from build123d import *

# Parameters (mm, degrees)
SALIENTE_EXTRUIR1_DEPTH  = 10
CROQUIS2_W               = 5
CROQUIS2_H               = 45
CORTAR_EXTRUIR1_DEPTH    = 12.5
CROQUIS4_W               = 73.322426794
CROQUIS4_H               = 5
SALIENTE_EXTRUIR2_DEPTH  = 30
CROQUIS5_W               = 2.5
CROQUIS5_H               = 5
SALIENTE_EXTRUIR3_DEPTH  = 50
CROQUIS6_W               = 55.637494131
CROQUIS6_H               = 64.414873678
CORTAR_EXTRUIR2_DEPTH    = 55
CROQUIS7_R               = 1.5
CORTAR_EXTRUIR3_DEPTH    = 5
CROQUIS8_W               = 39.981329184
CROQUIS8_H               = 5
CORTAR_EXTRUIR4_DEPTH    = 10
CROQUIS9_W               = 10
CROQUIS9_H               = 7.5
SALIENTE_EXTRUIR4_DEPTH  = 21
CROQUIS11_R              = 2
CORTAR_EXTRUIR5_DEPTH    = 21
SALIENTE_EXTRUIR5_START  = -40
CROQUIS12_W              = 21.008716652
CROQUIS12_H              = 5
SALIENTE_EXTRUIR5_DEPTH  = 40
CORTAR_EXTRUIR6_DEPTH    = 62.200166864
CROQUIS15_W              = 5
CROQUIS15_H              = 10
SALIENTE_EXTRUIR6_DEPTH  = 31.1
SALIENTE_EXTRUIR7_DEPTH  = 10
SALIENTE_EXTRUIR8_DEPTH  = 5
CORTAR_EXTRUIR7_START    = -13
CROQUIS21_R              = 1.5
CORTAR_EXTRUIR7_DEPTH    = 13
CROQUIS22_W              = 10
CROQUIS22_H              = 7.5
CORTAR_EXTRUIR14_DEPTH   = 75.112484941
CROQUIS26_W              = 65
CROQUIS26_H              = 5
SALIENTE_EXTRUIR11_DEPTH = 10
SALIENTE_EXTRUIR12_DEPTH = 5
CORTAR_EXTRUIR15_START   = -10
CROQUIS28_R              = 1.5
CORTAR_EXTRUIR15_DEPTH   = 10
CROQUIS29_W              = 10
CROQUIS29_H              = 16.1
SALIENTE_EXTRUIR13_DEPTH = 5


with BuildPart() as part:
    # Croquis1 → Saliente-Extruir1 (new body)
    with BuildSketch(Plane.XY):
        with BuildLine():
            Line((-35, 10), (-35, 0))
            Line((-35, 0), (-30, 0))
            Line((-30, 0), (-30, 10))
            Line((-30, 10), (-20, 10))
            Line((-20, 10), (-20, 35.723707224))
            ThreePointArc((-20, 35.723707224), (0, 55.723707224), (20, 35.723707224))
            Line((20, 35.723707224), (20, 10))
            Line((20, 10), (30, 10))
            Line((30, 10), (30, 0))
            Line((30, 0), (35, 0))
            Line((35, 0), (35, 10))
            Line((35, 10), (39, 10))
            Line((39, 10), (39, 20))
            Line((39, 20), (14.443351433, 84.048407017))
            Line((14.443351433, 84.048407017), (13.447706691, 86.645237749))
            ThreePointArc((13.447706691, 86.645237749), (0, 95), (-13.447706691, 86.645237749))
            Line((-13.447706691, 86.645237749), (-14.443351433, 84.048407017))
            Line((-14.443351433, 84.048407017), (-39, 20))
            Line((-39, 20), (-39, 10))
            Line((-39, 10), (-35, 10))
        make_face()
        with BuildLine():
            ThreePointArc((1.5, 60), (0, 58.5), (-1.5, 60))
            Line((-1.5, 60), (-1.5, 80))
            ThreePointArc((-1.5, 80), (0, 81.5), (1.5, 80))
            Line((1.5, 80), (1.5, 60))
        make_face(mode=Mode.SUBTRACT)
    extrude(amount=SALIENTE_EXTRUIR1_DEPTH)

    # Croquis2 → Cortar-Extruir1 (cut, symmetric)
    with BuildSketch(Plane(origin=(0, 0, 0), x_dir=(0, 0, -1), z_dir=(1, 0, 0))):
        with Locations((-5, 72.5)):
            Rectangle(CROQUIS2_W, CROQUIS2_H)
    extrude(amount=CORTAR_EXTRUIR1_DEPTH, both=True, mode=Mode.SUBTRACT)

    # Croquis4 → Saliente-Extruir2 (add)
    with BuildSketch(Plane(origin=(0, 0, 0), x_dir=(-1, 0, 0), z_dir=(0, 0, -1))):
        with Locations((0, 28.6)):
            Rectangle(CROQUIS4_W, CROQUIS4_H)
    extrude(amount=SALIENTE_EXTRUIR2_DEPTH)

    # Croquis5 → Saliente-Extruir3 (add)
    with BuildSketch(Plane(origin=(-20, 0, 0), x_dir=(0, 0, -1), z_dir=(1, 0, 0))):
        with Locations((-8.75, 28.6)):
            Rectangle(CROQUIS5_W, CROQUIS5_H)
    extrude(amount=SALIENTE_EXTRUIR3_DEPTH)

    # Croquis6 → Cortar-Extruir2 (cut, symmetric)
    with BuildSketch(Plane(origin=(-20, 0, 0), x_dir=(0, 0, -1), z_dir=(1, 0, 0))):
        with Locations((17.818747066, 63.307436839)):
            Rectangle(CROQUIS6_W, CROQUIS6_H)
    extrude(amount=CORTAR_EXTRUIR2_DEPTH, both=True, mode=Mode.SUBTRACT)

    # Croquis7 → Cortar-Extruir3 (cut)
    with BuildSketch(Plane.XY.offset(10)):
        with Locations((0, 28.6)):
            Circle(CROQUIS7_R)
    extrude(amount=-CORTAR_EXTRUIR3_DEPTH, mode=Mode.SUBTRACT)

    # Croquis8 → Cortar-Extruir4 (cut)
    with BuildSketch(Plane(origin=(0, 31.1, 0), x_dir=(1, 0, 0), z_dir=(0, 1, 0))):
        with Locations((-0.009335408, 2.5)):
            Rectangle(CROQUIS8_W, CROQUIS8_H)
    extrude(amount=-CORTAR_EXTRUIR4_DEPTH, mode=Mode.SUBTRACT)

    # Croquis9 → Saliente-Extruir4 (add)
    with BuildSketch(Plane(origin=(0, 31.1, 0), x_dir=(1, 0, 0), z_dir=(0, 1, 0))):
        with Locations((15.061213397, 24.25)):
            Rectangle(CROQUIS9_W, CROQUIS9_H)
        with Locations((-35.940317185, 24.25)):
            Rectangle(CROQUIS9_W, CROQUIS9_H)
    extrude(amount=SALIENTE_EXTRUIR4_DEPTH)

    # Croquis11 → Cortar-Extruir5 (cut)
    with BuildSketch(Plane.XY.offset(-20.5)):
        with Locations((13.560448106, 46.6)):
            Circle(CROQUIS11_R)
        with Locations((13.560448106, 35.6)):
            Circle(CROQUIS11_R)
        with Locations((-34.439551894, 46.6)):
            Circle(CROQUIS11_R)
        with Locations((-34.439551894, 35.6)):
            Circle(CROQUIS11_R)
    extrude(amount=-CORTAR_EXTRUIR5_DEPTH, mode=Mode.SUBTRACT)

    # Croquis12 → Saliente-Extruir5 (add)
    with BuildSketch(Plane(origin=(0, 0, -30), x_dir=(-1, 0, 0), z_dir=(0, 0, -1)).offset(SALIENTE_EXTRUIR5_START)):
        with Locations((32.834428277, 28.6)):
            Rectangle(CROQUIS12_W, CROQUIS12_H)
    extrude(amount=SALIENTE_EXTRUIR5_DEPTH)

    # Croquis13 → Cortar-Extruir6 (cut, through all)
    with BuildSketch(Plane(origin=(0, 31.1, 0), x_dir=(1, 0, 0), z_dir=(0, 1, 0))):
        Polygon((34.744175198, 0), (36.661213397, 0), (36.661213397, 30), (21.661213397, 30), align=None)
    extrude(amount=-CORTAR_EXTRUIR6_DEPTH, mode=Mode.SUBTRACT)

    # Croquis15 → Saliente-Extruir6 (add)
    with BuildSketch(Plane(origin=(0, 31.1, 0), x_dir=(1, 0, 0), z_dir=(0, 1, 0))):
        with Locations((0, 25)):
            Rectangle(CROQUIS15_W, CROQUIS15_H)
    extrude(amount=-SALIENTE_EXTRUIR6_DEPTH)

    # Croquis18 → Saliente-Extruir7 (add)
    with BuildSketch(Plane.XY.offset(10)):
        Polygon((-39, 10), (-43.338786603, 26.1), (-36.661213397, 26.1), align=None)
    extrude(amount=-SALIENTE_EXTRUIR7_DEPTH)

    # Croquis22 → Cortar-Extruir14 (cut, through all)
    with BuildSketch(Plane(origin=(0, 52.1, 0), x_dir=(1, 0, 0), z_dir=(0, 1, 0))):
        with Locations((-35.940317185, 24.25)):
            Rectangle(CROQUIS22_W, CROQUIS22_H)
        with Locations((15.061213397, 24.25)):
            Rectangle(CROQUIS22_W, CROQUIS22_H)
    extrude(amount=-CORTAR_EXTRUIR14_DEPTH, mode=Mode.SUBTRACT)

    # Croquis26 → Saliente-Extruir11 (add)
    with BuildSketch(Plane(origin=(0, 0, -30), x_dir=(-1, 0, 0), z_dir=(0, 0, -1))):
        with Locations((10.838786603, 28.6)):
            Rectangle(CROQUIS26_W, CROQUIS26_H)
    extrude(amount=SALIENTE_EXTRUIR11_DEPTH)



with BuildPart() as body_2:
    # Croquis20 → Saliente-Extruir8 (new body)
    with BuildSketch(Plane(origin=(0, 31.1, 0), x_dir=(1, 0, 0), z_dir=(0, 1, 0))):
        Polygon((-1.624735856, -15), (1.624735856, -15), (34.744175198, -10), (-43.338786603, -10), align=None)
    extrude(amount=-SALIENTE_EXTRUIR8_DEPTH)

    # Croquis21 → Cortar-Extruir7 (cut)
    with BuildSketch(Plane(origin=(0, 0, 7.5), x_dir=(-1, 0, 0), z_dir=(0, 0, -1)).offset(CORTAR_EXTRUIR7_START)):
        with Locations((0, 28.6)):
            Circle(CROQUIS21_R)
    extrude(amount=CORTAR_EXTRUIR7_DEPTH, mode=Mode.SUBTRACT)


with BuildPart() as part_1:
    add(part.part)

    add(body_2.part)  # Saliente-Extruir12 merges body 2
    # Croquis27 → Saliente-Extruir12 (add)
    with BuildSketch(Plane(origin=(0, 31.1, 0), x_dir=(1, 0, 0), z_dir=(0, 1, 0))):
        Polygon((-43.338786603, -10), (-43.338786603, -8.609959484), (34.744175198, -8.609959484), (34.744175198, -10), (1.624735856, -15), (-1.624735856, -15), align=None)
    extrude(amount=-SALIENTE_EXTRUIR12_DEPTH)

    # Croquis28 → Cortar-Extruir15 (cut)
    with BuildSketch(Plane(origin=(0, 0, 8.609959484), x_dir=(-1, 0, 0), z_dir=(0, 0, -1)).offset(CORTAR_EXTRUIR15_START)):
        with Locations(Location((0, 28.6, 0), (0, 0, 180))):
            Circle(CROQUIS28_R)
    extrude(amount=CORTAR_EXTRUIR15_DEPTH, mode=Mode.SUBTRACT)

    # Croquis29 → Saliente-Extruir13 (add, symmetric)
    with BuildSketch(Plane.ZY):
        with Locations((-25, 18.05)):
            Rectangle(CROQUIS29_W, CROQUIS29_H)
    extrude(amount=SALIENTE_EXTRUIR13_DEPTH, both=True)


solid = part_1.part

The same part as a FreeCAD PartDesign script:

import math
import FreeCAD as App
import Part
import Sketcher


def add_polygon(sketch, points):
    """Adds a closed chain of lines whose ends are joined by coincident constraints."""
    first, n = sketch.GeometryCount, len(points)
    for a, b in zip(points, points[1:] + points[:1]):
        sketch.addGeometry(Part.LineSegment(App.Vector(*a, 0), App.Vector(*b, 0)), False)
    for i in range(n):
        sketch.addConstraint(Sketcher.Constraint("Coincident", first + i, 2, first + (i + 1) % n, 1))

doc = App.newDocument("Part")
body = doc.addObject("PartDesign::Body", "Body")

# Sketch on XY plane
sketch1 = body.newObject("Sketcher::SketchObject", "Sketch")
sketch1.AttachmentSupport = (doc.getObject("XY_Plane"), [""])
sketch1.MapMode = "FlatFace"
sketch1.addGeometry([
    Part.LineSegment(App.Vector(-35, 10, 0), App.Vector(-35, 0, 0)),  # 0
    Part.LineSegment(App.Vector(-35, 0, 0), App.Vector(-30, 0, 0)),  # 1
    Part.LineSegment(App.Vector(-30, 0, 0), App.Vector(-30, 10, 0)),  # 2
    Part.LineSegment(App.Vector(-30, 10, 0), App.Vector(-20, 10, 0)),  # 3
    Part.LineSegment(App.Vector(-20, 10, 0), App.Vector(-20, 35.723707, 0)),  # 4
    Part.ArcOfCircle(Part.Circle(App.Vector(0, 35.723707, 0), App.Vector(0, 0, 1), 20), math.radians(0), math.radians(180)),  # 5
    Part.LineSegment(App.Vector(20, 35.723707, 0), App.Vector(20, 10, 0)),  # 6
    Part.LineSegment(App.Vector(20, 10, 0), App.Vector(30, 10, 0)),  # 7
    Part.LineSegment(App.Vector(30, 10, 0), App.Vector(30, 0, 0)),  # 8
    Part.LineSegment(App.Vector(30, 0, 0), App.Vector(35, 0, 0)),  # 9
    Part.LineSegment(App.Vector(35, 0, 0), App.Vector(35, 10, 0)),  # 10
    Part.LineSegment(App.Vector(35, 10, 0), App.Vector(39, 10, 0)),  # 11
    Part.LineSegment(App.Vector(39, 10, 0), App.Vector(39, 20, 0)),  # 12
    Part.LineSegment(App.Vector(39, 20, 0), App.Vector(14.443351, 84.048407, 0)),  # 13
    Part.LineSegment(App.Vector(14.443351, 84.048407, 0), App.Vector(13.447707, 86.645238, 0)),  # 14
    Part.ArcOfCircle(Part.Circle(App.Vector(0, 80, 0), App.Vector(0, 0, 1), 15), math.radians(26.296463), math.radians(153.703537)),  # 15
    Part.LineSegment(App.Vector(-13.447707, 86.645238, 0), App.Vector(-14.443351, 84.048407, 0)),  # 16
    Part.LineSegment(App.Vector(-14.443351, 84.048407, 0), App.Vector(-39, 20, 0)),  # 17
    Part.LineSegment(App.Vector(-39, 20, 0), App.Vector(-39, 10, 0)),  # 18
    Part.LineSegment(App.Vector(-39, 10, 0), App.Vector(-35, 10, 0)),  # 19
    Part.LineSegment(App.Vector(1.5, 80, 0), App.Vector(1.5, 60, 0)),  # 20
    Part.ArcOfCircle(Part.Circle(App.Vector(0, 60, 0), App.Vector(0, 0, 1), 1.5), math.radians(180), math.radians(360)),  # 21
    Part.LineSegment(App.Vector(-1.5, 60, 0), App.Vector(-1.5, 80, 0)),  # 22
    Part.ArcOfCircle(Part.Circle(App.Vector(0, 80, 0), App.Vector(0, 0, 1), 1.5), math.radians(0), math.radians(180)),  # 23
], False)
sketch1.addConstraint([
    Sketcher.Constraint("Coincident", 0, 2, 1, 1),
    Sketcher.Constraint("Coincident", 1, 2, 2, 1),
    Sketcher.Constraint("Coincident", 2, 2, 3, 1),
    Sketcher.Constraint("Coincident", 3, 2, 4, 1),
    Sketcher.Constraint("Tangent", 4, 2, 5, 2),
    Sketcher.Constraint("Tangent", 5, 1, 6, 1),
    Sketcher.Constraint("Coincident", 6, 2, 7, 1),
    Sketcher.Constraint("Coincident", 7, 2, 8, 1),
    Sketcher.Constraint("Coincident", 8, 2, 9, 1),
    Sketcher.Constraint("Coincident", 9, 2, 10, 1),
    Sketcher.Constraint("Coincident", 10, 2, 11, 1),
    Sketcher.Constraint("Coincident", 11, 2, 12, 1),
    Sketcher.Constraint("Coincident", 12, 2, 13, 1),
    Sketcher.Constraint("Coincident", 13, 2, 14, 1),
    Sketcher.Constraint("Coincident", 14, 2, 15, 1),
    Sketcher.Constraint("Coincident", 15, 2, 16, 1),
    Sketcher.Constraint("Coincident", 16, 2, 17, 1),
    Sketcher.Constraint("Coincident", 17, 2, 18, 1),
    Sketcher.Constraint("Coincident", 18, 2, 19, 1),
    Sketcher.Constraint("Coincident", 19, 2, 0, 1),
    Sketcher.Constraint("Tangent", 20, 2, 21, 2),
    Sketcher.Constraint("Tangent", 21, 1, 22, 1),
    Sketcher.Constraint("Tangent", 22, 2, 23, 2),
    Sketcher.Constraint("Tangent", 23, 1, 20, 1),
    Sketcher.Constraint("Vertical", 0),
    Sketcher.Constraint("Horizontal", 1),
    Sketcher.Constraint("Vertical", 2),
    Sketcher.Constraint("Horizontal", 3),
    Sketcher.Constraint("Vertical", 4),
    Sketcher.Constraint("Vertical", 6),
    Sketcher.Constraint("Horizontal", 7),
    Sketcher.Constraint("Vertical", 8),
    Sketcher.Constraint("Horizontal", 9),
    Sketcher.Constraint("Vertical", 10),
    Sketcher.Constraint("Horizontal", 11),
    Sketcher.Constraint("Vertical", 12),
    Sketcher.Constraint("Vertical", 18),
    Sketcher.Constraint("Horizontal", 19),
    Sketcher.Constraint("Vertical", 20),
    Sketcher.Constraint("Vertical", 22),
    Sketcher.Constraint("Coincident", 23, 3, 15, 3),
    Sketcher.Constraint("Symmetric", 1, 2, 8, 2, -1, 1),
    Sketcher.Constraint("Symmetric", 3, 2, 6, 2, -2),
    Sketcher.Constraint("Symmetric", 0, 2, 9, 2, -2),
    Sketcher.Constraint("Symmetric", 14, 2, 15, 2, -2),
    Sketcher.Constraint("Symmetric", 13, 2, 16, 2, -2),
    Sketcher.Constraint("Symmetric", 12, 2, 17, 2, -2),
    Sketcher.Constraint("Parallel", 13, 14),
    Sketcher.Constraint("Horizontal", 7, 2, 10, 2),
    Sketcher.Constraint("Horizontal", 11, 2, 18, 2),
    Sketcher.Constraint("Equal", 7, 0),
    Sketcher.Constraint("Equal", 10, 12),
    Sketcher.Constraint("Radius", 5, 20.0),
    Sketcher.Constraint("Radius", 15, 15.0),
    Sketcher.Constraint("Radius", 21, 1.5),
    Sketcher.Constraint("DistanceX", 1, 1, 1, 2, 5.0),
    Sketcher.Constraint("DistanceX", 3, 1, 3, 2, 10.0),
    Sketcher.Constraint("DistanceX", 11, 1, 11, 2, 4.0),
    Sketcher.Constraint("DistanceY", 20, 2, 20, 1, 20.0),
    Sketcher.Constraint("DistanceY", -1, 1, 15, 3, 80.0),
    Sketcher.Constraint("DistanceY", 5, 1, 13, 2, 48.3247),
    Sketcher.Constraint("Distance", 13, 68.59466),
    Sketcher.Constraint("DistanceY", 4, 1, 4, 2, 25.723707),
])
pad1 = body.newObject("PartDesign::Pad", "Pad")
pad1.Profile = sketch1
pad1.Length = 10

# Sketch on YZ plane
sketch2 = body.newObject("Sketcher::SketchObject", "Sketch001")
sketch2.AttachmentSupport = (doc.getObject("YZ_Plane"), [""])
sketch2.MapMode = "FlatFace"
add_polygon(sketch2, [(95, 7.5), (50, 7.5), (50, 2.5), (95, 2.5)])  # lines 0-3
sketch2.addConstraint([
    Sketcher.Constraint("Horizontal", 0),
    Sketcher.Constraint("Vertical", 1),
    Sketcher.Constraint("Horizontal", 2),
    Sketcher.Constraint("Vertical", 3),
    Sketcher.Constraint("DistanceX", 0, 2, 0, 1, 45.0),
    Sketcher.Constraint("DistanceY", 1, 2, 1, 1, 5.0),
    Sketcher.Constraint("DistanceX", -1, 1, 0, 2, 50.0),
    Sketcher.Constraint("DistanceY", -1, 1, 0, 2, 7.5),
])
pocket1 = body.newObject("PartDesign::Pocket", "Pocket")
pocket1.Profile = sketch2
pocket1.Length = 25
pocket1.Midplane = True

# Sketch on XY plane
sketch3 = body.newObject("Sketcher::SketchObject", "Sketch002")
sketch3.AttachmentSupport = (doc.getObject("XY_Plane"), [""])
sketch3.MapMode = "FlatFace"
add_polygon(sketch3, [(36.661213, 31.1), (36.661213, 26.1), (-36.661213, 26.1), (-36.661213, 31.1)])  # lines 0-3
sketch3.addConstraint([
    Sketcher.Constraint("Vertical", 0),
    Sketcher.Constraint("Horizontal", 1),
    Sketcher.Constraint("Vertical", 2),
    Sketcher.Constraint("Horizontal", 3),
    Sketcher.Constraint("DistanceY", 0, 2, 0, 1, 5.0),
    Sketcher.Constraint("DistanceY", -1, 1, 0, 2, 26.1),
    Sketcher.Constraint("DistanceX", 1, 2, 1, 1, 73.322427),
    Sketcher.Constraint("DistanceX", -1, 1, 0, 2, 36.661213),
])
pad2 = body.newObject("PartDesign::Pad", "Pad001")
pad2.Profile = sketch3
pad2.Length = 30
pad2.Reversed = True

# Sketch on YZ plane
sketch4 = body.newObject("Sketcher::SketchObject", "Sketch003")
sketch4.AttachmentSupport = (doc.getObject("YZ_Plane"), [""])
sketch4.MapMode = "FlatFace"
sketch4.AttachmentOffset = App.Placement(App.Vector(0, 0, -20), App.Rotation())
add_polygon(sketch4, [(31.1, 10), (26.1, 10), (26.1, 7.5), (31.1, 7.5)])  # lines 0-3
sketch4.addConstraint([
    Sketcher.Constraint("Horizontal", 0),
    Sketcher.Constraint("Vertical", 1),
    Sketcher.Constraint("Horizontal", 2),
    Sketcher.Constraint("Vertical", 3),
    Sketcher.Constraint("DistanceX", 0, 2, 0, 1, 5.0),
    Sketcher.Constraint("DistanceY", 1, 2, 1, 1, 2.5),
    Sketcher.Constraint("DistanceY", -1, 1, 0, 2, 10.0),
    Sketcher.Constraint("DistanceX", -1, 1, 0, 2, 26.1),
])
pad3 = body.newObject("PartDesign::Pad", "Pad002")
pad3.Profile = sketch4
pad3.Length = 50

# Sketch on YZ plane
sketch5 = body.newObject("Sketcher::SketchObject", "Sketch004")
sketch5.AttachmentSupport = (doc.getObject("YZ_Plane"), [""])
sketch5.MapMode = "FlatFace"
sketch5.AttachmentOffset = App.Placement(App.Vector(0, 0, -20), App.Rotation())
add_polygon(sketch5, [(95.514874, 10), (31.1, 10), (31.1, -45.637494), (95.514874, -45.637494)])  # lines 0-3
sketch5.addConstraint([
    Sketcher.Constraint("Horizontal", 0),
    Sketcher.Constraint("Vertical", 1),
    Sketcher.Constraint("Horizontal", 2),
    Sketcher.Constraint("Vertical", 3),
    Sketcher.Constraint("DistanceY", -1, 1, 0, 2, 10.0),
    Sketcher.Constraint("DistanceX", -1, 1, 0, 2, 31.1),
    Sketcher.Constraint("DistanceX", 0, 2, 0, 1, 64.414874),
    Sketcher.Constraint("DistanceY", 1, 2, 1, 1, 55.637494),
])
pocket2 = body.newObject("PartDesign::Pocket", "Pocket001")
pocket2.Profile = sketch5
pocket2.Length = 110
pocket2.Midplane = True

# Sketch on XY plane
sketch6 = body.newObject("Sketcher::SketchObject", "Sketch005")
sketch6.AttachmentSupport = (doc.getObject("XY_Plane"), [""])
sketch6.MapMode = "FlatFace"
sketch6.AttachmentOffset = App.Placement(App.Vector(0, 0, 10), App.Rotation())
sketch6.addGeometry(Part.Circle(App.Vector(0, 28.6, 0), App.Vector(0, 0, 1), 1.5), False)
sketch6.addConstraint([
    Sketcher.Constraint("PointOnObject", 0, 3, -2),
    Sketcher.Constraint("Diameter", 0, 3.0),
    Sketcher.Constraint("DistanceY", -1, 1, 0, 3, 28.6),
])
pocket3 = body.newObject("PartDesign::Pocket", "Pocket002")
pocket3.Profile = sketch6
pocket3.Length = 5

# Sketch on XZ plane
sketch7 = body.newObject("Sketcher::SketchObject", "Sketch006")
sketch7.AttachmentSupport = (doc.getObject("XZ_Plane"), [""])
sketch7.MapMode = "FlatFace"
sketch7.AttachmentOffset = App.Placement(App.Vector(0, 0, -31.1), App.Rotation())
add_polygon(sketch7, [(-20, -5), (-20, 0), (19.981329, 0), (19.981329, -5)])  # lines 0-3
sketch7.addConstraint([
    Sketcher.Constraint("Vertical", 0),
    Sketcher.Constraint("Horizontal", 1),
    Sketcher.Constraint("Vertical", 2),
    Sketcher.Constraint("Horizontal", 3),
    Sketcher.Constraint("PointOnObject", 0, 2, -1),
    Sketcher.Constraint("DistanceY", 0, 1, 0, 2, 5.0),
    Sketcher.Constraint("DistanceX", 0, 2, -1, 1, 20.0),
    Sketcher.Constraint("DistanceX", 1, 1, 1, 2, 39.981329),
])
pocket4 = body.newObject("PartDesign::Pocket", "Pocket003")
pocket4.Profile = sketch7
pocket4.Length = 10
pocket4.Reversed = True

# Sketch on XZ plane
sketch8 = body.newObject("Sketcher::SketchObject", "Sketch007")
sketch8.AttachmentSupport = (doc.getObject("XZ_Plane"), [""])
sketch8.MapMode = "FlatFace"
sketch8.AttachmentOffset = App.Placement(App.Vector(0, 0, -31.1), App.Rotation())
add_polygon(sketch8, [(10.061213, -28), (10.061213, -20.5), (20.061213, -20.5), (20.061213, -28)])  # lines 0-3
add_polygon(sketch8, [(-40.940317, -28), (-40.940317, -20.5), (-30.940317, -20.5), (-30.940317, -28)])  # lines 4-7
sketch8.addConstraint([
    Sketcher.Constraint("Vertical", 0),
    Sketcher.Constraint("Horizontal", 1),
    Sketcher.Constraint("Vertical", 2),
    Sketcher.Constraint("Horizontal", 3),
    Sketcher.Constraint("Vertical", 4),
    Sketcher.Constraint("Horizontal", 5),
    Sketcher.Constraint("Vertical", 6),
    Sketcher.Constraint("Horizontal", 7),
    Sketcher.Constraint("Horizontal", 1, 2, 4, 2),
    Sketcher.Constraint("Horizontal", 3, 2, 6, 2),
    Sketcher.Constraint("Equal", 3, 5),
    Sketcher.Constraint("DistanceX", 1, 1, 1, 2, 10.0),
    Sketcher.Constraint("DistanceY", 0, 1, 0, 2, 7.5),
    Sketcher.Constraint("DistanceY", 2, 2, -1, 1, 28.0),
    Sketcher.Constraint("DistanceX", 4, 2, 0, 2, 51.001531),
    Sketcher.Constraint("DistanceX", -1, 1, 0, 2, 10.061213),
])
pad4 = body.newObject("PartDesign::Pad", "Pad003")
pad4.Profile = sketch8
pad4.Length = 21
pad4.Reversed = True

# Sketch on XY plane
sketch9 = body.newObject("Sketcher::SketchObject", "Sketch008")
sketch9.AttachmentSupport = (doc.getObject("XY_Plane"), [""])
sketch9.MapMode = "FlatFace"
sketch9.AttachmentOffset = App.Placement(App.Vector(0, 0, -20.5), App.Rotation())
sketch9.addGeometry([
    Part.Circle(App.Vector(13.560448, 46.6, 0), App.Vector(0, 0, 1), 2),
    Part.Circle(App.Vector(13.560448, 35.6, 0), App.Vector(0, 0, 1), 2),
    Part.Circle(App.Vector(-34.439552, 46.6, 0), App.Vector(0, 0, 1), 2),
    Part.Circle(App.Vector(-34.439552, 35.6, 0), App.Vector(0, 0, 1), 2),
], False)
sketch9.addConstraint([
    Sketcher.Constraint("Equal", 0, 1),
    Sketcher.Constraint("Equal", 1, 2),
    Sketcher.Constraint("Equal", 2, 3),
    Sketcher.Constraint("Horizontal", 0, 3, 2, 3),
    Sketcher.Constraint("Horizontal", 1, 3, 3, 3),
    Sketcher.Constraint("Vertical", 0, 3, 1, 3),
    Sketcher.Constraint("Vertical", 2, 3, 3, 3),
    Sketcher.Constraint("Diameter", 0, 4.0),
    Sketcher.Constraint("DistanceY", 1, 3, 0, 3, 11.0),
    Sketcher.Constraint("DistanceX", 2, 3, 0, 3, 48.0),
    Sketcher.Constraint("DistanceY", -1, 1, 0, 3, 46.6),
    Sketcher.Constraint("DistanceX", -1, 1, 0, 3, 13.560448),
])
pocket5 = body.newObject("PartDesign::Pocket", "Pocket004")
pocket5.Profile = sketch9
pocket5.Length = 21

# Sketch on XY plane
sketch10 = body.newObject("Sketcher::SketchObject", "Sketch009")
sketch10.AttachmentSupport = (doc.getObject("XY_Plane"), [""])
sketch10.MapMode = "FlatFace"
sketch10.AttachmentOffset = App.Placement(App.Vector(0, 0, 10), App.Rotation())
add_polygon(sketch10, [(-22.33007, 31.1), (-22.33007, 26.1), (-43.338787, 26.1), (-43.338787, 31.1)])  # lines 0-3
sketch10.addConstraint([
    Sketcher.Constraint("Vertical", 0),
    Sketcher.Constraint("Horizontal", 1),
    Sketcher.Constraint("Vertical", 2),
    Sketcher.Constraint("Horizontal", 3),
    Sketcher.Constraint("DistanceY", 0, 2, 0, 1, 5.0),
    Sketcher.Constraint("DistanceY", -1, 1, 0, 2, 26.1),
    Sketcher.Constraint("DistanceX", 1, 2, 1, 1, 21.008717),
    Sketcher.Constraint("DistanceX", 0, 2, -1, 1, 22.33007),
])
pad5 = body.newObject("PartDesign::Pad", "Pad004")
pad5.Profile = sketch10
pad5.Length = 40
pad5.Reversed = True

# Sketch on XZ plane
sketch11 = body.newObject("Sketcher::SketchObject", "Sketch010")
sketch11.AttachmentSupport = (doc.getObject("XZ_Plane"), [""])
sketch11.MapMode = "FlatFace"
sketch11.AttachmentOffset = App.Placement(App.Vector(0, 0, -31.1), App.Rotation())
add_polygon(sketch11, [(34.744175, 0), (36.661213, 0), (36.661213, -30), (21.661213, -30)])  # lines 0-3
sketch11.addConstraint([
    Sketcher.Constraint("Horizontal", 0),
    Sketcher.Constraint("Vertical", 1),
    Sketcher.Constraint("Horizontal", 2),
    Sketcher.Constraint("PointOnObject", 0, 2, -1),
    Sketcher.Constraint("DistanceX", 2, 2, 2, 1, 15.0),
    Sketcher.Constraint("DistanceY", 1, 2, 1, 1, 30.0),
    Sketcher.Constraint("DistanceX", 0, 1, 0, 2, 1.917038),
    Sketcher.Constraint("DistanceX", -1, 1, 0, 2, 36.661213),
])
pocket6 = body.newObject("PartDesign::Pocket", "Pocket005")
pocket6.Profile = sketch11
pocket6.Type = "ThroughAll"
pocket6.Reversed = True

# Sketch on XZ plane
sketch12 = body.newObject("Sketcher::SketchObject", "Sketch011")
sketch12.AttachmentSupport = (doc.getObject("XZ_Plane"), [""])
sketch12.MapMode = "FlatFace"
sketch12.AttachmentOffset = App.Placement(App.Vector(0, 0, -31.1), App.Rotation())
add_polygon(sketch12, [(-2.5, -30), (-2.5, -20), (2.5, -20), (2.5, -30)])  # lines 0-3
sketch12.addConstraint([
    Sketcher.Constraint("Vertical", 0),
    Sketcher.Constraint("Horizontal", 1),
    Sketcher.Constraint("Vertical", 2),
    Sketcher.Constraint("Horizontal", 3),
    Sketcher.Constraint("DistanceX", 1, 1, 1, 2, 5.0),
    Sketcher.Constraint("DistanceY", 0, 1, 0, 2, 10.0),
    Sketcher.Constraint("DistanceY", 0, 2, -1, 1, 20.0),
    Sketcher.Constraint("DistanceX", 0, 2, -1, 1, 2.5),
])
pad6 = body.newObject("PartDesign::Pad", "Pad005")
pad6.Profile = sketch12
pad6.Length = 31.1

# Sketch on XY plane
sketch13 = body.newObject("Sketcher::SketchObject", "Sketch012")
sketch13.AttachmentSupport = (doc.getObject("XY_Plane"), [""])
sketch13.MapMode = "FlatFace"
sketch13.AttachmentOffset = App.Placement(App.Vector(0, 0, 10), App.Rotation())
add_polygon(sketch13, [(-43.338787, 26.1), (-39, 10), (-36.661213, 26.1)])  # lines 0-2
sketch13.addConstraint([
    Sketcher.Constraint("Horizontal", 2),
    Sketcher.Constraint("DistanceX", 0, 2, -1, 1, 39.0),
    Sketcher.Constraint("DistanceY", -1, 1, 0, 2, 10.0),
    Sketcher.Constraint("DistanceY", -1, 1, 1, 2, 26.1),
    Sketcher.Constraint("DistanceX", 2, 2, 2, 1, 6.677573),
    Sketcher.Constraint("Distance", 0, 16.674384),
])
pad7 = body.newObject("PartDesign::Pad", "Pad006")
pad7.Profile = sketch13
pad7.Length = 10
pad7.Reversed = True

# Sketch on XZ plane
sketch14 = body.newObject("Sketcher::SketchObject", "Sketch013")
sketch14.AttachmentSupport = (doc.getObject("XZ_Plane"), [""])
sketch14.MapMode = "FlatFace"
sketch14.AttachmentOffset = App.Placement(App.Vector(0, 0, -52.1), App.Rotation())
add_polygon(sketch14, [(-40.940317, -28), (-40.940317, -20.5), (-30.940317, -20.5), (-30.940317, -28)])  # lines 0-3
add_polygon(sketch14, [(10.061213, -28), (10.061213, -20.5), (20.061213, -20.5), (20.061213, -28)])  # lines 4-7
sketch14.addConstraint([
    Sketcher.Constraint("Vertical", 0),
    Sketcher.Constraint("Horizontal", 1),
    Sketcher.Constraint("Vertical", 2),
    Sketcher.Constraint("Horizontal", 3),
    Sketcher.Constraint("Vertical", 4),
    Sketcher.Constraint("Horizontal", 5),
    Sketcher.Constraint("Vertical", 6),
    Sketcher.Constraint("Horizontal", 7),
    Sketcher.Constraint("Horizontal", 1, 2, 4, 2),
    Sketcher.Constraint("Horizontal", 3, 2, 6, 2),
    Sketcher.Constraint("Equal", 3, 5),
    Sketcher.Constraint("DistanceX", 1, 1, 1, 2, 10.0),
    Sketcher.Constraint("DistanceY", 0, 1, 0, 2, 7.5),
    Sketcher.Constraint("DistanceY", 2, 2, -1, 1, 28.0),
    Sketcher.Constraint("DistanceX", 1, 2, 4, 2, 41.001531),
    Sketcher.Constraint("DistanceX", 0, 2, -1, 1, 40.940317),
])
pocket7 = body.newObject("PartDesign::Pocket", "Pocket006")
pocket7.Profile = sketch14
pocket7.Type = "ThroughAll"
pocket7.Reversed = True

# Sketch on XY plane
sketch15 = body.newObject("Sketcher::SketchObject", "Sketch014")
sketch15.AttachmentSupport = (doc.getObject("XY_Plane"), [""])
sketch15.MapMode = "FlatFace"
sketch15.AttachmentOffset = App.Placement(App.Vector(0, 0, -30), App.Rotation())
add_polygon(sketch15, [(21.661213, 31.1), (21.661213, 26.1), (-43.338787, 26.1), (-43.338787, 31.1)])  # lines 0-3
sketch15.addConstraint([
    Sketcher.Constraint("Vertical", 0),
    Sketcher.Constraint("Horizontal", 1),
    Sketcher.Constraint("Vertical", 2),
    Sketcher.Constraint("Horizontal", 3),
    Sketcher.Constraint("DistanceX", 1, 2, 1, 1, 65.0),
    Sketcher.Constraint("DistanceY", 0, 2, 0, 1, 5.0),
    Sketcher.Constraint("DistanceY", -1, 1, 0, 2, 26.1),
    Sketcher.Constraint("DistanceX", -1, 1, 0, 2, 21.661213),
])
pad8 = body.newObject("PartDesign::Pad", "Pad007")
pad8.Profile = sketch15
pad8.Length = 10
pad8.Reversed = True
body2 = doc.addObject("PartDesign::Body", "Body001")

# Sketch on XZ plane
sketch16 = body2.newObject("Sketcher::SketchObject", "Sketch015")
sketch16.AttachmentSupport = (doc.getObject("XZ_Plane001"), [""])
sketch16.MapMode = "FlatFace"
sketch16.AttachmentOffset = App.Placement(App.Vector(0, 0, -31.1), App.Rotation())
add_polygon(sketch16, [(-1.624736, 15), (1.624736, 15), (34.744175, 10), (-43.338787, 10)])  # lines 0-3
sketch16.addConstraint([
    Sketcher.Constraint("Horizontal", 0),
    Sketcher.Constraint("Horizontal", 2),
    Sketcher.Constraint("DistanceY", -1, 1, 0, 2, 15.0),
    Sketcher.Constraint("DistanceY", -1, 1, 1, 2, 10.0),
    Sketcher.Constraint("DistanceX", 0, 1, 0, 2, 3.249472),
    Sketcher.Constraint("DistanceX", 2, 2, 2, 1, 78.082962),
    Sketcher.Constraint("Distance", 3, 42.012641),
    Sketcher.Constraint("DistanceX", -1, 1, 0, 2, 1.624736),
])
pad9 = body2.newObject("PartDesign::Pad", "Pad008")
pad9.Profile = sketch16
pad9.Length = 5

# Sketch on XY plane
sketch17 = body2.newObject("Sketcher::SketchObject", "Sketch016")
sketch17.AttachmentSupport = (doc.getObject("XY_Plane001"), [""])
sketch17.MapMode = "FlatFace"
sketch17.AttachmentOffset = App.Placement(App.Vector(0, 0, 20.5), App.Rotation())
sketch17.addGeometry(Part.Circle(App.Vector(0, 28.6, 0), App.Vector(0, 0, 1), 1.5), False)
sketch17.addConstraint([
    Sketcher.Constraint("PointOnObject", 0, 3, -2),
    Sketcher.Constraint("Diameter", 0, 3.0),
    Sketcher.Constraint("DistanceY", -1, 1, 0, 3, 28.6),
])
pocket8 = body2.newObject("PartDesign::Pocket", "Pocket007")
pocket8.Profile = sketch17
pocket8.Length = 13
doc.recompute()

boolean = body.newObject("PartDesign::Boolean", "Boolean")
boolean.Type = "Fuse"
boolean.addObjects([body2])

# Sketch on XZ plane
sketch18 = body.newObject("Sketcher::SketchObject", "Sketch017")
sketch18.AttachmentSupport = (doc.getObject("XZ_Plane"), [""])
sketch18.MapMode = "FlatFace"
sketch18.AttachmentOffset = App.Placement(App.Vector(0, 0, -31.1), App.Rotation())
add_polygon(sketch18, [(-43.338787, 8.609959), (-43.338787, 10), (-1.624736, 15), (1.624736, 15), (34.744175, 10), (34.744175, 8.609959)])  # lines 0-5
sketch18.addConstraint([
    Sketcher.Constraint("Vertical", 0),
    Sketcher.Constraint("Horizontal", 2),
    Sketcher.Constraint("Vertical", 4),
    Sketcher.Constraint("Horizontal", 5),
    Sketcher.Constraint("Horizontal", 0, 2, 3, 2),
    Sketcher.Constraint("DistanceY", -1, 1, 0, 2, 10.0),
    Sketcher.Constraint("DistanceY", -1, 1, 1, 2, 15.0),
    Sketcher.Constraint("DistanceX", 2, 1, 2, 2, 3.249472),
    Sketcher.Constraint("DistanceX", 5, 2, 5, 1, 78.082962),
    Sketcher.Constraint("DistanceY", 0, 1, 0, 2, 1.390041),
    Sketcher.Constraint("Distance", 1, 42.012641),
    Sketcher.Constraint("DistanceX", 0, 2, -1, 1, 43.338787),
])
pad10 = body.newObject("PartDesign::Pad", "Pad009")
pad10.Profile = sketch18
pad10.Length = 5

# Sketch on XY plane
sketch19 = body.newObject("Sketcher::SketchObject", "Sketch018")
sketch19.AttachmentSupport = (doc.getObject("XY_Plane"), [""])
sketch19.MapMode = "FlatFace"
sketch19.AttachmentOffset = App.Placement(App.Vector(0, 0, 18.609959), App.Rotation())
sketch19.addGeometry(Part.Circle(App.Vector(0, 28.6, 0), App.Vector(0, 0, 1), 1.5), False)
sketch19.addConstraint([
    Sketcher.Constraint("PointOnObject", 0, 3, -2),
    Sketcher.Constraint("Diameter", 0, 3.0),
    Sketcher.Constraint("DistanceY", -1, 1, 0, 3, 28.6),
])
pocket9 = body.newObject("PartDesign::Pocket", "Pocket008")
pocket9.Profile = sketch19
pocket9.Length = 10

# Sketch on YZ plane
sketch20 = body.newObject("Sketcher::SketchObject", "Sketch019")
sketch20.AttachmentSupport = (doc.getObject("YZ_Plane"), [""])
sketch20.MapMode = "FlatFace"
add_polygon(sketch20, [(26.1, -30), (10, -30), (10, -20), (26.1, -20)])  # lines 0-3
sketch20.addConstraint([
    Sketcher.Constraint("Horizontal", 0),
    Sketcher.Constraint("Vertical", 1),
    Sketcher.Constraint("Horizontal", 2),
    Sketcher.Constraint("Vertical", 3),
    Sketcher.Constraint("DistanceY", 1, 1, 1, 2, 10.0),
    Sketcher.Constraint("DistanceX", 0, 2, 0, 1, 16.1),
    Sketcher.Constraint("DistanceX", -1, 1, 0, 2, 10.0),
    Sketcher.Constraint("DistanceY", 0, 2, -1, 1, 30.0),
])
pad11 = body.newObject("PartDesign::Pad", "Pad010")
pad11.Profile = sketch20
pad11.Length = 10
pad11.Midplane = True

doc.recompute()
